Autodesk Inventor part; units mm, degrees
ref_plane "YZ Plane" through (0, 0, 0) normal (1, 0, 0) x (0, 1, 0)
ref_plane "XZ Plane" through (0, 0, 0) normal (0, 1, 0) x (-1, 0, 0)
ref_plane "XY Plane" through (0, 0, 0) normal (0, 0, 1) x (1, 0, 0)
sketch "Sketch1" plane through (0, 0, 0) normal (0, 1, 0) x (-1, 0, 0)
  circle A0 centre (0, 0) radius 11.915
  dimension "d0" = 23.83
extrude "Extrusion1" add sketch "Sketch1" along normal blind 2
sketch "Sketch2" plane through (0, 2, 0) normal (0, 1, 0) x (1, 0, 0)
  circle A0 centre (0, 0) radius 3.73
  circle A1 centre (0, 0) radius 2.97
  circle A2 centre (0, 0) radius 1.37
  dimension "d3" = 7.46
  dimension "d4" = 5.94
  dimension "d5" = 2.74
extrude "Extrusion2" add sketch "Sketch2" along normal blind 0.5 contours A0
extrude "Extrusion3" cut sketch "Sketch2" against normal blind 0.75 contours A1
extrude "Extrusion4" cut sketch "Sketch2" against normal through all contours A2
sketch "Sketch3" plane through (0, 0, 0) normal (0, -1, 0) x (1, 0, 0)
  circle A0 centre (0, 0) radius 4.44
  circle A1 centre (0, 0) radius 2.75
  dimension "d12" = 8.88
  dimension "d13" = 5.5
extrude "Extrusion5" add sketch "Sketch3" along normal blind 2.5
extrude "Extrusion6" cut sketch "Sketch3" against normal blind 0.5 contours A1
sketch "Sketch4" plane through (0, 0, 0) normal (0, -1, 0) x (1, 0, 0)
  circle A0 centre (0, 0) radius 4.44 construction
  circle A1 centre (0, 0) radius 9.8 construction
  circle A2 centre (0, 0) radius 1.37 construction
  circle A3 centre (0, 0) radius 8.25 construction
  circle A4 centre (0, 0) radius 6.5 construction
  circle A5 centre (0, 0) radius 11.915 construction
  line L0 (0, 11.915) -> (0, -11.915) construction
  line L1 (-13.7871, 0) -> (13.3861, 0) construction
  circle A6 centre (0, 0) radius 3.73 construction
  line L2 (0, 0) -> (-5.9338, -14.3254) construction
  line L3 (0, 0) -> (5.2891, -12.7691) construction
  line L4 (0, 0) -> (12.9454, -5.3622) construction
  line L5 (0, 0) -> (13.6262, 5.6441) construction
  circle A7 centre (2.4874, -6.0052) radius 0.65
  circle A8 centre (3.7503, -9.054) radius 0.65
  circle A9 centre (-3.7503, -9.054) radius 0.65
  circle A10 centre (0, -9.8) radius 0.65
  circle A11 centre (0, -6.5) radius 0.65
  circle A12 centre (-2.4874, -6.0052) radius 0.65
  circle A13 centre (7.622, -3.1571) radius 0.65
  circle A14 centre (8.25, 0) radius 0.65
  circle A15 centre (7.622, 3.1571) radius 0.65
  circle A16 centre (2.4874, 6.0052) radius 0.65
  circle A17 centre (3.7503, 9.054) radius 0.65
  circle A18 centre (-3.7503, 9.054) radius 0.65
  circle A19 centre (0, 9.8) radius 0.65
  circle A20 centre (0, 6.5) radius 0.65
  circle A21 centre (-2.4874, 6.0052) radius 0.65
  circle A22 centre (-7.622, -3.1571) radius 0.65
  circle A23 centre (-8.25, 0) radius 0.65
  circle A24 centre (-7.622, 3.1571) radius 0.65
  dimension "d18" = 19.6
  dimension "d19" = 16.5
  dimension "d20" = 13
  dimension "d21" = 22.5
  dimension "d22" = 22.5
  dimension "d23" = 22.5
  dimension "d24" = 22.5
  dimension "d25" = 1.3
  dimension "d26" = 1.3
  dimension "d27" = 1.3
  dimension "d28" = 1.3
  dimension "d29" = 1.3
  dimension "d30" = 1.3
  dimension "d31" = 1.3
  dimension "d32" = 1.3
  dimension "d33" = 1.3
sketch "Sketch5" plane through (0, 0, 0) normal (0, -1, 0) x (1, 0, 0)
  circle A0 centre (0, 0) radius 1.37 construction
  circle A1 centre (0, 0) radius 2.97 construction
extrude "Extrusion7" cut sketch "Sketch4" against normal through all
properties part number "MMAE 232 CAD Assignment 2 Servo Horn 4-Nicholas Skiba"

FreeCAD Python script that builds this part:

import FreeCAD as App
import Part
import Sketcher
Q = App.Units.Quantity

doc = App.newDocument("Part")
body = doc.addObject("PartDesign::Body", "Body")

# Sketch on XZ plane
sketch1 = doc.addObject("Sketcher::SketchObject", "Sketch")
body.addObject(sketch1)
sketch1.AttachmentSupport = (doc.XZ_Plane, [""])
sketch1.MapMode = "FlatFace"
sketch1.addGeometry(Part.Circle(App.Vector(0, 0, 0), App.Vector(0, 0, 1), 12), False)
sketch1.addConstraint(Sketcher.Constraint("Coincident", 0, 3, -1, 1))
sketch1.addConstraint(Sketcher.Constraint("Diameter", 0, Q("23.83 mm")))
pad1 = doc.addObject("PartDesign::Pad", "Pad")
body.addObject(pad1)
pad1.Profile = sketch1
pad1.Length = 2
pad1.Reversed = True

# Sketch on XZ plane
sketch2 = doc.addObject("Sketcher::SketchObject", "Sketch001")
body.addObject(sketch2)
sketch2.AttachmentSupport = (doc.XZ_Plane, [""])
sketch2.MapMode = "FlatFace"
sketch2.AttachmentOffset = App.Placement(App.Vector(0, 0, -2), App.Rotation())
sketch2.addGeometry(Part.Circle(App.Vector(0, 0, 0), App.Vector(0, 0, 1), 3.7), False)
sketch2.addGeometry(Part.Circle(App.Vector(0, 0, 0), App.Vector(0, 0, 1), 3), False)
sketch2.addConstraint(Sketcher.Constraint("Coincident", 0, 3, -1, 1))
sketch2.addConstraint(Sketcher.Constraint("Coincident", 1, 3, -1, 1))
sketch2.addConstraint(Sketcher.Constraint("Diameter", 0, Q("7.46 mm")))
sketch2.addConstraint(Sketcher.Constraint("Diameter", 1, Q("5.94 mm")))
pad2 = doc.addObject("PartDesign::Pad", "Pad001")
body.addObject(pad2)
pad2.Profile = sketch2
pad2.Length = 0.5
pad2.Reversed = True

# Sketch on XZ plane
sketch3 = doc.addObject("Sketcher::SketchObject", "Sketch002")
body.addObject(sketch3)
sketch3.AttachmentSupport = (doc.XZ_Plane, [""])
sketch3.MapMode = "FlatFace"
sketch3.AttachmentOffset = App.Placement(App.Vector(0, 0, -2), App.Rotation())
sketch3.addGeometry(Part.Circle(App.Vector(0, 0, 0), App.Vector(0, 0, 1), 3), False)
sketch3.addGeometry(Part.Circle(App.Vector(0, 0, 0), App.Vector(0, 0, 1), 1.4), False)
sketch3.addConstraint(Sketcher.Constraint("Coincident", 0, 3, -1, 1))
sketch3.addConstraint(Sketcher.Constraint("Coincident", 1, 3, -1, 1))
sketch3.addConstraint(Sketcher.Constraint("Diameter", 0, Q("5.94 mm")))
sketch3.addConstraint(Sketcher.Constraint("Diameter", 1, Q("2.74 mm")))
pocket1 = doc.addObject("PartDesign::Pocket", "Pocket")
body.addObject(pocket1)
pocket1.Profile = sketch3
pocket1.Length = 0.75
pocket1.Reversed = True

# Sketch on XZ plane
sketch4 = doc.addObject("Sketcher::SketchObject", "Sketch003")
body.addObject(sketch4)
sketch4.AttachmentSupport = (doc.XZ_Plane, [""])
sketch4.MapMode = "FlatFace"
sketch4.AttachmentOffset = App.Placement(App.Vector(0, 0, -2), App.Rotation())
sketch4.addGeometry(Part.Circle(App.Vector(0, 0, 0), App.Vector(0, 0, 1), 1.4), False)
sketch4.addConstraint(Sketcher.Constraint("Coincident", 0, 3, -1, 1))
sketch4.addConstraint(Sketcher.Constraint("Diameter", 0, Q("2.74 mm")))
pocket2 = doc.addObject("PartDesign::Pocket", "Pocket001")
body.addObject(pocket2)
pocket2.Profile = sketch4
pocket2.Type = "ThroughAll"
pocket2.Reversed = True

# Sketch on XZ plane
sketch5 = doc.addObject("Sketcher::SketchObject", "Sketch004")
body.addObject(sketch5)
sketch5.AttachmentSupport = (doc.XZ_Plane, [""])
sketch5.MapMode = "FlatFace"
sketch5.addGeometry(Part.Circle(App.Vector(0, 0, 0), App.Vector(0, 0, 1), 4.4), False)
sketch5.addGeometry(Part.Circle(App.Vector(0, 0, 0), App.Vector(0, 0, 1), 2.8), False)
sketch5.addConstraint(Sketcher.Constraint("Coincident", 0, 3, -1, 1))
sketch5.addConstraint(Sketcher.Constraint("Coincident", 1, 3, -1, 1))
sketch5.addConstraint(Sketcher.Constraint("Diameter", 1, Q("5.5 mm")))
sketch5.addConstraint(Sketcher.Constraint("Diameter", 0, Q("8.88 mm")))
pad3 = doc.addObject("PartDesign::Pad", "Pad002")
body.addObject(pad3)
pad3.Profile = sketch5
pad3.Length = 2.5

# Sketch on XZ plane
sketch6 = doc.addObject("Sketcher::SketchObject", "Sketch005")
body.addObject(sketch6)
sketch6.AttachmentSupport = (doc.XZ_Plane, [""])
sketch6.MapMode = "FlatFace"
sketch6.addGeometry(Part.Circle(App.Vector(0, 0, 0), App.Vector(0, 0, 1), 2.8), False)
sketch6.addConstraint(Sketcher.Constraint("Coincident", 0, 3, -1, 1))
sketch6.addConstraint(Sketcher.Constraint("Diameter", 0, Q("5.5 mm")))
pocket3 = doc.addObject("PartDesign::Pocket", "Pocket002")
body.addObject(pocket3)
pocket3.Profile = sketch6
pocket3.Length = 0.5

# Sketch on XZ plane
sketch7 = doc.addObject("Sketcher::SketchObject", "Sketch006")
body.addObject(sketch7)
sketch7.AttachmentSupport = (doc.XZ_Plane, [""])
sketch7.MapMode = "FlatFace"
sketch7.addGeometry(Part.Circle(App.Vector(2.5, -6, 0), App.Vector(0, 0, 1), 0.7), False)
sketch7.addGeometry(Part.Circle(App.Vector(3.8, -9.1, 0), App.Vector(0, 0, 1), 0.7), False)
sketch7.addGeometry(Part.Circle(App.Vector(-3.8, -9.1, 0), App.Vector(0, 0, 1), 0.7), False)
sketch7.addGeometry(Part.Circle(App.Vector(0, -9.8, 0), App.Vector(0, 0, 1), 0.7), False)
sketch7.addGeometry(Part.Circle(App.Vector(0, -6.5, 0), App.Vector(0, 0, 1), 0.7), False)
sketch7.addGeometry(Part.Circle(App.Vector(-2.5, -6, 0), App.Vector(0, 0, 1), 0.7), False)
sketch7.addGeometry(Part.Circle(App.Vector(7.6, -3.2, 0), App.Vector(0, 0, 1), 0.7), False)
sketch7.addGeometry(Part.Circle(App.Vector(8.2, 0, 0), App.Vector(0, 0, 1), 0.7), False)
sketch7.addGeometry(Part.Circle(App.Vector(7.6, 3.2, 0), App.Vector(0, 0, 1), 0.7), False)
sketch7.addGeometry(Part.Circle(App.Vector(2.5, 6, 0), App.Vector(0, 0, 1), 0.7), False)
sketch7.addGeometry(Part.Circle(App.Vector(3.8, 9.1, 0), App.Vector(0, 0, 1), 0.7), False)
sketch7.addGeometry(Part.Circle(App.Vector(-3.8, 9.1, 0), App.Vector(0, 0, 1), 0.7), False)
sketch7.addGeometry(Part.Circle(App.Vector(0, 9.8, 0), App.Vector(0, 0, 1), 0.7), False)
sketch7.addGeometry(Part.Circle(App.Vector(0, 6.5, 0), App.Vector(0, 0, 1), 0.7), False)
sketch7.addGeometry(Part.Circle(App.Vector(-2.5, 6, 0), App.Vector(0, 0, 1), 0.7), False)
sketch7.addGeometry(Part.Circle(App.Vector(-7.6, -3.2, 0), App.Vector(0, 0, 1), 0.7), False)
sketch7.addGeometry(Part.Circle(App.Vector(-8.2, 0, 0), App.Vector(0, 0, 1), 0.7), False)
sketch7.addGeometry(Part.Circle(App.Vector(-7.6, 3.2, 0), App.Vector(0, 0, 1), 0.7), False)
sketch7.addConstraint(Sketcher.Constraint("Equal", 0, 1))
sketch7.addConstraint(Sketcher.Constraint("Equal", 1, 2))
sketch7.addConstraint(Sketcher.Constraint("Equal", 2, 3))
sketch7.addConstraint(Sketcher.Constraint("Equal", 3, 4))
sketch7.addConstraint(Sketcher.Constraint("Equal", 4, 5))
sketch7.addConstraint(Sketcher.Constraint("Equal", 5, 6))
sketch7.addConstraint(Sketcher.Constraint("Equal", 6, 7))
sketch7.addConstraint(Sketcher.Constraint("Equal", 7, 8))
sketch7.addConstraint(Sketcher.Constraint("Equal", 8, 9))
sketch7.addConstraint(Sketcher.Constraint("Equal", 9, 10))
sketch7.addConstraint(Sketcher.Constraint("Equal", 10, 11))
sketch7.addConstraint(Sketcher.Constraint("Equal", 11, 12))
sketch7.addConstraint(Sketcher.Constraint("Equal", 12, 13))
sketch7.addConstraint(Sketcher.Constraint("Equal", 13, 14))
sketch7.addConstraint(Sketcher.Constraint("Equal", 14, 15))
sketch7.addConstraint(Sketcher.Constraint("Equal", 15, 16))
sketch7.addConstraint(Sketcher.Constraint("Equal", 16, 17))
sketch7.addConstraint(Sketcher.Constraint("Symmetric", 5, 3, 9, 3, -1, 1))
sketch7.addConstraint(Sketcher.Constraint("Symmetric", 2, 3, 10, 3, -1, 1))
sketch7.addConstraint(Sketcher.Constraint("Symmetric", 1, 3, 11, 3, -1, 1))
sketch7.addConstraint(Sketcher.Constraint("Symmetric", 3, 3, 12, 3, -1, 1))
sketch7.addConstraint(Sketcher.Constraint("Symmetric", 4, 3, 13, 3, -1, 1))
sketch7.addConstraint(Sketcher.Constraint("Symmetric", 0, 3, 14, 3, -1, 1))
sketch7.addConstraint(Sketcher.Constraint("Symmetric", 8, 3, 15, 3, -1, 1))
sketch7.addConstraint(Sketcher.Constraint("Symmetric", 7, 3, 16, 3, -1, 1))
sketch7.addConstraint(Sketcher.Constraint("Symmetric", 6, 3, 17, 3, -1, 1))
sketch7.addConstraint(Sketcher.Constraint("Symmetric", 1, 3, 2, 3, -2))
sketch7.addConstraint(Sketcher.Constraint("Symmetric", 0, 3, 5, 3, -2))
sketch7.addConstraint(Sketcher.Constraint("Symmetric", 6, 3, 15, 3, -2))
sketch7.addConstraint(Sketcher.Constraint("PointOnObject", 3, 3, -2))
sketch7.addConstraint(Sketcher.Constraint("PointOnObject", 4, 3, -2))
sketch7.addConstraint(Sketcher.Constraint("PointOnObject", 7, 3, -1))
sketch7.addConstraint(Sketcher.Constraint("Diameter", 0, Q("1.3 mm")))
sketch7.addConstraint(Sketcher.Constraint("DistanceY", 3, 3, -1, 1, Q("9.8 mm")))
sketch7.addConstraint(Sketcher.Constraint("DistanceY", 4, 3, -1, 1, Q("6.5 mm")))
sketch7.addConstraint(Sketcher.Constraint("DistanceX", -1, 1, 7, 3, Q("8.25 mm")))
sketch7.addConstraint(Sketcher.Constraint("DistanceY", 1, 3, -1, 1, Q("9.054 mm")))
sketch7.addConstraint(Sketcher.Constraint("DistanceX", -1, 1, 6, 3, Q("7.622 mm")))
sketch7.addConstraint(Sketcher.Constraint("DistanceY", 6, 3, -1, 1, Q("3.157 mm")))
sketch7.addConstraint(Sketcher.Constraint("DistanceX", 0, 3, 1, 3, Q("1.263 mm")))
sketch7.addConstraint(Sketcher.Constraint("DistanceY", 0, 3, 6, 3, Q("2.848 mm")))
sketch7.addConstraint(Sketcher.Constraint("DistanceX", -1, 1, 0, 3, Q("2.4874 mm")))
pocket4 = doc.addObject("PartDesign::Pocket", "Pocket003")
body.addObject(pocket4)
pocket4.Profile = sketch7
pocket4.Type = "ThroughAll"

doc.recompute()
